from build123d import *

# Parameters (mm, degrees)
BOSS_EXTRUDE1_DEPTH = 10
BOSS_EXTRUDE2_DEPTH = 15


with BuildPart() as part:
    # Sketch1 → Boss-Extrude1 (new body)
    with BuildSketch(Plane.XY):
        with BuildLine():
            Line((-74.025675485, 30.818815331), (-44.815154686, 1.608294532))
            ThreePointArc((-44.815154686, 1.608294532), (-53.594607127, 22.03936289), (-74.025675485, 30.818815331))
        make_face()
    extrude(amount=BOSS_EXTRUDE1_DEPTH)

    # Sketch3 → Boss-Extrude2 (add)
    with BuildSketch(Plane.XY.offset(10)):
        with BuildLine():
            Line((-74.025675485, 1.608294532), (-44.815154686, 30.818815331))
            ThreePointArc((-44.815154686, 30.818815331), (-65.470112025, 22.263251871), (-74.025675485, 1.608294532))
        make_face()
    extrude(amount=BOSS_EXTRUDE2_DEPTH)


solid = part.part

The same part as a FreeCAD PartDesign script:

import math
import FreeCAD as App
import Part
import Sketcher
from FreeCAD import Vector
Q = App.Units.Quantity

doc = App.newDocument("Part")
body = doc.addObject("PartDesign::Body", "Body")

sketch1 = doc.addObject("Sketcher::SketchObject", "Sketch")
body.addObject(sketch1)
sketch1.AttachmentSupport = (doc.XY_Plane, [""])
sketch1.MapMode = "FlatFace"
sketch1.addGeometry(Part.LineSegment(Vector(-74.025675, 30.818815, 0), Vector(-44.815155, 1.608295, 0)), False)
sketch1.addGeometry(Part.ArcOfCircle(Part.Circle(Vector(-74.815155, 0.818815, 0), Vector(0, 0, 1), 30.010386), math.radians(1.507446), math.radians(88.492554)), False)
sketch1.addConstraint(Sketcher.Constraint("Coincident", 0, 1, 1, 2))
sketch1.addConstraint(Sketcher.Constraint("Coincident", 1, 1, 0, 2))
sketch1.addConstraint(Sketcher.Constraint("Angle", 0, Q("-45 deg")))
sketch1.addConstraint(Sketcher.Constraint("DistanceY", 1, 3, 0, 1, 30.0))
sketch1.addConstraint(Sketcher.Constraint("Radius", 1, 30.010386))
sketch1.addConstraint(Sketcher.Constraint("DistanceX", 1, 3, -1, 1, 74.815155))
sketch1.addConstraint(Sketcher.Constraint("DistanceY", -1, 1, 1, 3, 0.818815))
pad1 = doc.addObject("PartDesign::Pad", "Pad")
body.addObject(pad1)
pad1.Profile = sketch1
pad1.Length = 10

sketch2 = doc.addObject("Sketcher::SketchObject", "Sketch001")
body.addObject(sketch2)
sketch2.AttachmentSupport = (doc.XY_Plane, [""])
sketch2.MapMode = "FlatFace"
sketch2.AttachmentOffset = App.Placement(Vector(0, 0, 10), App.Rotation())
sketch2.addGeometry(Part.LineSegment(Vector(-74.025675, 1.608295, 0), Vector(-44.815155, 30.818815, 0)), False)
sketch2.addGeometry(Part.ArcOfCircle(Part.Circle(Vector(-44.815155, 1.608295, 0), Vector(0, 0, 1), 29.210521), math.radians(90), math.radians(180)), False)
sketch2.addConstraint(Sketcher.Constraint("Coincident", 0, 1, 1, 2))
sketch2.addConstraint(Sketcher.Constraint("Coincident", 1, 1, 0, 2))
sketch2.addConstraint(Sketcher.Constraint("Horizontal", 1, 3, 0, 1))
sketch2.addConstraint(Sketcher.Constraint("Angle", 0, Q("45 deg")))
sketch2.addConstraint(Sketcher.Constraint("Radius", 1, 29.210521))
sketch2.addConstraint(Sketcher.Constraint("DistanceX", 1, 3, -1, 1, 44.815155))
sketch2.addConstraint(Sketcher.Constraint("DistanceY", -1, 1, 1, 3, 1.608295))
pad2 = doc.addObject("PartDesign::Pad", "Pad001")
body.addObject(pad2)
pad2.Profile = sketch2
pad2.Length = 15

doc.recompute()
